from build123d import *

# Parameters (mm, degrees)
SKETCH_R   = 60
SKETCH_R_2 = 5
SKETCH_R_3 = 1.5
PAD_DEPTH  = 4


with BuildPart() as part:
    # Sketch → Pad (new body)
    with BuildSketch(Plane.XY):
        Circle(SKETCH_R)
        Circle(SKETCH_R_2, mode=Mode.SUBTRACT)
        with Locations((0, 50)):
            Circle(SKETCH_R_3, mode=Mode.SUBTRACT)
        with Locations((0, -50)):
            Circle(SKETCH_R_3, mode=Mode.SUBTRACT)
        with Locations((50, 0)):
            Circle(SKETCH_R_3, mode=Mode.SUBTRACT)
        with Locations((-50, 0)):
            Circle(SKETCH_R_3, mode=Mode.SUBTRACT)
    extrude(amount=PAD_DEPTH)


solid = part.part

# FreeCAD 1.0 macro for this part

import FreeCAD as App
import Part
import Sketcher

V = App.Vector
Q = App.Units.Quantity

doc = App.newDocument("Part")
body = doc.addObject("PartDesign::Body", "Body")

# Sketch on XY plane
sketch1 = body.newObject("Sketcher::SketchObject", "Sketch")
sketch1.AttachmentSupport = (doc.getObject("XY_Plane"), [""])
sketch1.MapMode = "FlatFace"
sketch1.addGeometry([
    Part.Circle(V(0, 0, 0), V(0, 0, 1), 60),  # 0
    Part.Circle(V(0, -50, 0), V(0, 0, 1), 1.5),  # 1
    Part.Circle(V(-50, 0, 0), V(0, 0, 1), 1.5),  # 2
    Part.Circle(V(0, 0, 0), V(0, 0, 1), 5),  # 3
    Part.Circle(V(50, 0, 0), V(0, 0, 1), 1.5),  # 4
    Part.Circle(V(0, 50, 0), V(0, 0, 1), 1.5),  # 5
], False)
sketch1.addConstraint([
    Sketcher.Constraint("Coincident", 0, 3, -1, 1),
    Sketcher.Constraint("Coincident", 3, 3, -1, 1),
    Sketcher.Constraint("Equal", 1, 2),
    Sketcher.Constraint("Equal", 2, 4),
    Sketcher.Constraint("Equal", 4, 5),
    Sketcher.Constraint("Symmetric", 2, 3, 4, 3, -1, 1),
    Sketcher.Constraint("Symmetric", 1, 3, 5, 3, -1, 1),
    Sketcher.Constraint("PointOnObject", 1, 3, -2),
    Sketcher.Constraint("PointOnObject", 2, 3, -1),
    Sketcher.Constraint("Diameter", 0, Q("120 mm")),
    Sketcher.Constraint("Diameter", 1, Q("3 mm")),
    Sketcher.Constraint("Diameter", 3, Q("10 mm")),
    Sketcher.Constraint("DistanceY", 1, 3, -1, 1, Q("50 mm")),
    Sketcher.Constraint("DistanceX", 2, 3, -1, 1, Q("50 mm")),
])
pad1 = body.newObject("PartDesign::Pad", "Pad")
pad1.Profile = sketch1
pad1.Length = 4

doc.recompute()
